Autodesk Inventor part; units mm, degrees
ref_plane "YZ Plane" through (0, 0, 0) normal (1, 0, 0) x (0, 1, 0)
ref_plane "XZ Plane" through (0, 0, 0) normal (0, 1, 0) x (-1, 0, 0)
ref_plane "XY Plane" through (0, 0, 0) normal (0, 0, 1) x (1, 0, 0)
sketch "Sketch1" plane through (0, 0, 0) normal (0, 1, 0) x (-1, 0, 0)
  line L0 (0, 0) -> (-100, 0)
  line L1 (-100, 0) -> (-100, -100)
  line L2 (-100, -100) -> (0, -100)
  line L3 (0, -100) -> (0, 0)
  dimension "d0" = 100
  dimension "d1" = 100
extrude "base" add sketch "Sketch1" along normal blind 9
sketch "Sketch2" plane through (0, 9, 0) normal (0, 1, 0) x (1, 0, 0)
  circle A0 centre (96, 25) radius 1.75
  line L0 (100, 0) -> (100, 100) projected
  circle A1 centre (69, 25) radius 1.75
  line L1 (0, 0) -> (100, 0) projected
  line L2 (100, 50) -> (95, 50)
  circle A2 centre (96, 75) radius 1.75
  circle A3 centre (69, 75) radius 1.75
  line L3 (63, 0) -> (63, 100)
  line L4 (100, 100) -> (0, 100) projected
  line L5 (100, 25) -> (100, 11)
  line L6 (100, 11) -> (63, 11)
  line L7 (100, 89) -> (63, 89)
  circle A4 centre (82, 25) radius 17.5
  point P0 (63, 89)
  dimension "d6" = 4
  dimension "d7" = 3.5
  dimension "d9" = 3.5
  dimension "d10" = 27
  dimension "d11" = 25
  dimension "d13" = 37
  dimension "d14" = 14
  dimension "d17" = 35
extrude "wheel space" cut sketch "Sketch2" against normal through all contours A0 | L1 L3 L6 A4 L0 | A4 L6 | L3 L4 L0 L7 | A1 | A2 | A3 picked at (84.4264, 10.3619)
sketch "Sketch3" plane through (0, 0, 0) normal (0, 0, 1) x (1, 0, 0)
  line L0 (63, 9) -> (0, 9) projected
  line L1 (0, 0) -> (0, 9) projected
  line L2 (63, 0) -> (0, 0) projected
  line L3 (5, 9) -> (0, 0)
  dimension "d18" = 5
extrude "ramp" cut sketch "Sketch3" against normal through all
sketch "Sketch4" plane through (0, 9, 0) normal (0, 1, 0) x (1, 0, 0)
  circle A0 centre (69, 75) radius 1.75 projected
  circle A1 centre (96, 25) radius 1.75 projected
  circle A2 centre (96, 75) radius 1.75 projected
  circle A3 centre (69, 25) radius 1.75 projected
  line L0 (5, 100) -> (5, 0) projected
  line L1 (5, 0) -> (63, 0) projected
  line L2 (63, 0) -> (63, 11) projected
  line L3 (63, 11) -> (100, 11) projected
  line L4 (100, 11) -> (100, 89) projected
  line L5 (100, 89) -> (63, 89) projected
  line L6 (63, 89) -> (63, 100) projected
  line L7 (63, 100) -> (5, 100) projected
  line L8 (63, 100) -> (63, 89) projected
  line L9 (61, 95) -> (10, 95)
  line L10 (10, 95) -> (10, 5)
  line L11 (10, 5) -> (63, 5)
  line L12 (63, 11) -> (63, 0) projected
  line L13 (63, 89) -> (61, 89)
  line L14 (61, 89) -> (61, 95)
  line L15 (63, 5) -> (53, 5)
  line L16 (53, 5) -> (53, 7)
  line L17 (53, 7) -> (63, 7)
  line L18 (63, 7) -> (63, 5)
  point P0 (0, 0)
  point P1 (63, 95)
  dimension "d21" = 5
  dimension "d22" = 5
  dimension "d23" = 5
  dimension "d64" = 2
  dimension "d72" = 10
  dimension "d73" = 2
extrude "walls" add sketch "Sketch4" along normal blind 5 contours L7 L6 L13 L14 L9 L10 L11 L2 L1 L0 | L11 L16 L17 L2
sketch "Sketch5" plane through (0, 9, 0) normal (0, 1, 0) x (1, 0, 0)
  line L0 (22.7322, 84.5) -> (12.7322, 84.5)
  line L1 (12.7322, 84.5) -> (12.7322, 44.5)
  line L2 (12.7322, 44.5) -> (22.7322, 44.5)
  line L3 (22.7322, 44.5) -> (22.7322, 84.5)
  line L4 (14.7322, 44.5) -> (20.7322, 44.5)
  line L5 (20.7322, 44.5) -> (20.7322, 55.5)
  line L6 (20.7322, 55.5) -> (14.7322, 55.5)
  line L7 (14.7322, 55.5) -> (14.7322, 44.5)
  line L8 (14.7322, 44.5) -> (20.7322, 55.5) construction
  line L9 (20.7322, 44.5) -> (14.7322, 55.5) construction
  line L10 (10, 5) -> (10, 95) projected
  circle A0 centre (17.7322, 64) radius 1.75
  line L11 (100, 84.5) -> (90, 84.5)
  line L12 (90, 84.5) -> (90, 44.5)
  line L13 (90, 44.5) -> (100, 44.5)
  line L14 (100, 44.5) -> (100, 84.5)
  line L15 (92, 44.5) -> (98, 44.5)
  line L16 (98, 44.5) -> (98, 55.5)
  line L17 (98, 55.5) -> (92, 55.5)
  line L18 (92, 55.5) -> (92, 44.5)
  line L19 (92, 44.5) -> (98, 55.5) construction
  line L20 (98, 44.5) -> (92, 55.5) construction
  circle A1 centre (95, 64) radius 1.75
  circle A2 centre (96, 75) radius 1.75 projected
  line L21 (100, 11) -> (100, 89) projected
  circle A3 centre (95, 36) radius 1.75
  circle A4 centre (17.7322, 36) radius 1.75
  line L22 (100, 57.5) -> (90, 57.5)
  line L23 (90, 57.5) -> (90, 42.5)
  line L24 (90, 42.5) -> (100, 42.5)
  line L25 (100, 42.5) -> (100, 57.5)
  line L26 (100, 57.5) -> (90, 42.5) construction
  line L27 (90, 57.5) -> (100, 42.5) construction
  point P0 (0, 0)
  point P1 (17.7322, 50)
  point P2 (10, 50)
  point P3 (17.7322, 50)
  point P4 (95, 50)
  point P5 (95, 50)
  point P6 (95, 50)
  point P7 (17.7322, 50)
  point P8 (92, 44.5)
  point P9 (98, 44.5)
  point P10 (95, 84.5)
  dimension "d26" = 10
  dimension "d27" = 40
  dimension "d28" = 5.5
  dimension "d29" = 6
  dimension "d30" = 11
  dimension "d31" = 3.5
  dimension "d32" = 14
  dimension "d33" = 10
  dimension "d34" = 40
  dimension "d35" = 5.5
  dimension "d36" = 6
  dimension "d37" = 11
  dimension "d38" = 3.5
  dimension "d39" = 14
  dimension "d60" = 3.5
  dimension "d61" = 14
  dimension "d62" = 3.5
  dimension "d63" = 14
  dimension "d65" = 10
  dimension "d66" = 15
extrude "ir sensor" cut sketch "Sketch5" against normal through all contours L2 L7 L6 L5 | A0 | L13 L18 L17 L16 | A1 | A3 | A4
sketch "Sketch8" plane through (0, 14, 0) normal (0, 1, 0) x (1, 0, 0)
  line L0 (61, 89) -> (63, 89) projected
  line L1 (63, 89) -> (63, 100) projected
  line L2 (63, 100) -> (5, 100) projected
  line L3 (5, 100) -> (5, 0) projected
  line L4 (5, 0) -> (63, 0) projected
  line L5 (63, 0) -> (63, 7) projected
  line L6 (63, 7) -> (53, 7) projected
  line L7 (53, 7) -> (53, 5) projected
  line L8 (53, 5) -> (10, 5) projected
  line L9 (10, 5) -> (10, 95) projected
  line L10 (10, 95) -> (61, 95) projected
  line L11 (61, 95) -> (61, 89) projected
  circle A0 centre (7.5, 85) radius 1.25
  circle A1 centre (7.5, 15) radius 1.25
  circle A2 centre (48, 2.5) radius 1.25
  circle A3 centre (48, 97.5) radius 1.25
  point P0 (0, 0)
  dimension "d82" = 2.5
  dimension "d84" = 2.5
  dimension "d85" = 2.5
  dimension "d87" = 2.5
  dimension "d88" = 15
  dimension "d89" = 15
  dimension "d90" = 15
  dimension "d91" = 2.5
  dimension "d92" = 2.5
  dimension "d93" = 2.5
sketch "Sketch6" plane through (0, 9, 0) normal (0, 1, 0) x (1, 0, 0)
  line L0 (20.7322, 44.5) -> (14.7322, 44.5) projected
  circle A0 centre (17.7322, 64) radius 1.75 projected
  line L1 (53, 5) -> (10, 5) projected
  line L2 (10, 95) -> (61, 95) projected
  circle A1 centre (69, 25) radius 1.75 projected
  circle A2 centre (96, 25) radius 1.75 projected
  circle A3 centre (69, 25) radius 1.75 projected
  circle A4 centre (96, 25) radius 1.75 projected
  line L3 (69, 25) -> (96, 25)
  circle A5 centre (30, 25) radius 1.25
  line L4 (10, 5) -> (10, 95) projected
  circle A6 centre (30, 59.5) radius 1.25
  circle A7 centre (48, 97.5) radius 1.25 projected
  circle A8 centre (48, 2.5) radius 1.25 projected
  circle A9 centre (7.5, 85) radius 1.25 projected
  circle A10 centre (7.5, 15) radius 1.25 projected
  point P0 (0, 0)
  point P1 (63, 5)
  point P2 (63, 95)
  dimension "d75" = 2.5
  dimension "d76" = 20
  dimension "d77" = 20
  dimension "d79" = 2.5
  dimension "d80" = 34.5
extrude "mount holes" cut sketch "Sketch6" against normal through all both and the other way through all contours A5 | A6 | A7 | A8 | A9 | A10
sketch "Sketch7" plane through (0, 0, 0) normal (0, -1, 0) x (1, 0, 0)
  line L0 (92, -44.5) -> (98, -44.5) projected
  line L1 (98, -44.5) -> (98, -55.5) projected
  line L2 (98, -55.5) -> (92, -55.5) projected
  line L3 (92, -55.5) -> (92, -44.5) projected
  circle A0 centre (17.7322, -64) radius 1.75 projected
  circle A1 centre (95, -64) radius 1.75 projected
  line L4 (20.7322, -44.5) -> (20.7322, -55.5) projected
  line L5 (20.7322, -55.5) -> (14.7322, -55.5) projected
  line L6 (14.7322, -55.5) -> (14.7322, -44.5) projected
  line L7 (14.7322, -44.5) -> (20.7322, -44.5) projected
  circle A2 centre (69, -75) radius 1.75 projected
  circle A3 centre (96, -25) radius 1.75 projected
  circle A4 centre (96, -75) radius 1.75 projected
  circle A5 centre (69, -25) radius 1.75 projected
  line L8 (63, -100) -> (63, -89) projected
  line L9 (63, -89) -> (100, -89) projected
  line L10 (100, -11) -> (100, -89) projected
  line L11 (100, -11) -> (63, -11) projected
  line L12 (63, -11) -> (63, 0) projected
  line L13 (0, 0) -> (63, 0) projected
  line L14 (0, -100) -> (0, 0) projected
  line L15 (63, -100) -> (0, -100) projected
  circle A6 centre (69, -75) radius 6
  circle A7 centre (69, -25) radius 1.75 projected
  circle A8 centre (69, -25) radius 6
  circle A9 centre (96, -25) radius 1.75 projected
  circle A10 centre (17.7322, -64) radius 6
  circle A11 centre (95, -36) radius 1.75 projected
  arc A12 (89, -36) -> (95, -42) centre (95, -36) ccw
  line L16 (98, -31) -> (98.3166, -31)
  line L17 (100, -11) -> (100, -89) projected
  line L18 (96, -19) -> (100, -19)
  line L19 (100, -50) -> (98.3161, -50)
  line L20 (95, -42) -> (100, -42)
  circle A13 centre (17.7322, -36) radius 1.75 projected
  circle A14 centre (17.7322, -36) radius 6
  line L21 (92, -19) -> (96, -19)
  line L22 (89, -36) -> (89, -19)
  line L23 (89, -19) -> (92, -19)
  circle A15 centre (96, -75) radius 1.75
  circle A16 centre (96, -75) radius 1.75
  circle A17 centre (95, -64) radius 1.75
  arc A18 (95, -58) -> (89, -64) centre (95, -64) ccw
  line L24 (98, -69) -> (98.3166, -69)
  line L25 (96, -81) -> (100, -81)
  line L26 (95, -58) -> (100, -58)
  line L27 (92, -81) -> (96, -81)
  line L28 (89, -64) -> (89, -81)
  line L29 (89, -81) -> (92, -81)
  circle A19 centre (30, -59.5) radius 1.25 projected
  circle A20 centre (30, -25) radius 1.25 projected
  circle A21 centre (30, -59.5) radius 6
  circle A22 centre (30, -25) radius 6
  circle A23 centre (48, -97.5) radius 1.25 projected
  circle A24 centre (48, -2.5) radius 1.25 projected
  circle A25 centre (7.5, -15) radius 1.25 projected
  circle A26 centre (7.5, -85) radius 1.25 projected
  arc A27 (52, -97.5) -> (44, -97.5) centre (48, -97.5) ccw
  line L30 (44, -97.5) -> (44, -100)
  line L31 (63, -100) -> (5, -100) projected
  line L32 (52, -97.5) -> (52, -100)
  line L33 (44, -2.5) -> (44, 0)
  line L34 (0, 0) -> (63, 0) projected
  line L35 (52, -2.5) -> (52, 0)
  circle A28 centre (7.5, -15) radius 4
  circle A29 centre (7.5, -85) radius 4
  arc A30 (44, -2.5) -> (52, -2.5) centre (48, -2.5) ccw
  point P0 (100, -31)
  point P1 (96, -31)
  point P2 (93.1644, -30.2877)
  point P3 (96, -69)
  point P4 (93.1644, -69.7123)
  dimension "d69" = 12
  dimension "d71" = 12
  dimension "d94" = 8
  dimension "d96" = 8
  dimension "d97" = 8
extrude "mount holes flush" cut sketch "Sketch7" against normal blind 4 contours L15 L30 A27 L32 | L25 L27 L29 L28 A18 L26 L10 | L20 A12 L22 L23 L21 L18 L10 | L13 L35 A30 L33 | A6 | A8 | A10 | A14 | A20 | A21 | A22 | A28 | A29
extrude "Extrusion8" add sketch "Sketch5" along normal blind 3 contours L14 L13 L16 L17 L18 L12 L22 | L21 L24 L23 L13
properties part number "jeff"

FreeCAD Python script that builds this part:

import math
import FreeCAD as App
import Part
import Sketcher

V = App.Vector
Q = App.Units.Quantity


def add_polygon(sketch, points):
    """Adds a closed chain of lines whose ends are joined by coincident constraints."""
    first, n = sketch.GeometryCount, len(points)
    for a, b in zip(points, points[1:] + points[:1]):
        sketch.addGeometry(Part.LineSegment(App.Vector(*a, 0), App.Vector(*b, 0)), False)
    for i in range(n):
        sketch.addConstraint(Sketcher.Constraint("Coincident", first + i, 2, first + (i + 1) % n, 1))

doc = App.newDocument("Part")
body = doc.addObject("PartDesign::Body", "Body")

# Sketch on XZ plane
sketch1 = body.newObject("Sketcher::SketchObject", "Sketch")
sketch1.AttachmentSupport = (doc.getObject("XZ_Plane"), [""])
sketch1.MapMode = "FlatFace"
add_polygon(sketch1, [(0, -100), (0, 0), (100, 0), (100, -100)])  # lines 0-3
sketch1.addConstraint(Sketcher.Constraint("Vertical", 0))
sketch1.addConstraint(Sketcher.Constraint("Horizontal", 1))
sketch1.addConstraint(Sketcher.Constraint("Vertical", 2))
sketch1.addConstraint(Sketcher.Constraint("Horizontal", 3))
sketch1.addConstraint(Sketcher.Constraint("Coincident", 0, 2, -1, 1))
sketch1.addConstraint(Sketcher.Constraint("Equal", 3, 0))
sketch1.addConstraint(Sketcher.Constraint("DistanceX", 1, 1, 1, 2, Q("100 mm")))
pad1 = body.newObject("PartDesign::Pad", "Pad")
pad1.Profile = sketch1
pad1.Length = 9
pad1.Reversed = True

# Sketch on XZ plane
sketch2 = body.newObject("Sketcher::SketchObject", "Sketch001")
sketch2.AttachmentSupport = (doc.getObject("XZ_Plane"), [""])
sketch2.MapMode = "FlatFace"
sketch2.AttachmentOffset = App.Placement(V(0, 0, -9), App.Rotation())
sketch2.addGeometry(Part.Circle(V(96, -25, 0), V(0, 0, 1), 1.8), False)  # 0
add_polygon(sketch2, [(63, 0), (100, 0), (100, -11), (63, -11)])  # lines 1-4
add_polygon(sketch2, [(63, -100), (63, -89), (100, -89), (100, -100)])  # lines 5-8
sketch2.addGeometry(Part.Circle(V(69, -25, 0), V(0, 0, 1), 1.8), False)  # 9
sketch2.addGeometry(Part.Circle(V(96, -75, 0), V(0, 0, 1), 1.8), False)  # 10
sketch2.addGeometry(Part.Circle(V(69, -75, 0), V(0, 0, 1), 1.8), False)  # 11
sketch2.addConstraint(Sketcher.Constraint("Horizontal", 1))
sketch2.addConstraint(Sketcher.Constraint("Vertical", 2))
sketch2.addConstraint(Sketcher.Constraint("Horizontal", 3))
sketch2.addConstraint(Sketcher.Constraint("Vertical", 4))
sketch2.addConstraint(Sketcher.Constraint("Vertical", 5))
sketch2.addConstraint(Sketcher.Constraint("Horizontal", 6))
sketch2.addConstraint(Sketcher.Constraint("Vertical", 7))
sketch2.addConstraint(Sketcher.Constraint("Horizontal", 8))
sketch2.addConstraint(Sketcher.Constraint("Equal", 0, 9))
sketch2.addConstraint(Sketcher.Constraint("Equal", 9, 10))
sketch2.addConstraint(Sketcher.Constraint("Equal", 10, 11))
sketch2.addConstraint(Sketcher.Constraint("PointOnObject", 1, 2, -1))
sketch2.addConstraint(Sketcher.Constraint("Horizontal", 0, 3, 9, 3))
sketch2.addConstraint(Sketcher.Constraint("Horizontal", 10, 3, 11, 3))
sketch2.addConstraint(Sketcher.Constraint("Vertical", 0, 3, 10, 3))
sketch2.addConstraint(Sketcher.Constraint("Vertical", 9, 3, 11, 3))
sketch2.addConstraint(Sketcher.Constraint("Vertical", 4, 2, 5, 2))
sketch2.addConstraint(Sketcher.Constraint("Vertical", 2, 2, 6, 2))
sketch2.addConstraint(Sketcher.Constraint("Equal", 4, 5))
sketch2.addConstraint(Sketcher.Constraint("Diameter", 0, Q("3.5 mm")))
sketch2.addConstraint(Sketcher.Constraint("DistanceX", 1, 1, 1, 2, Q("37 mm")))
sketch2.addConstraint(Sketcher.Constraint("DistanceY", 0, 3, -1, 1, Q("25 mm")))
sketch2.addConstraint(Sketcher.Constraint("DistanceX", 9, 3, 0, 3, Q("27 mm")))
sketch2.addConstraint(Sketcher.Constraint("DistanceX", 0, 3, 1, 2, Q("4 mm")))
sketch2.addConstraint(Sketcher.Constraint("DistanceY", 0, 3, 2, 2, Q("14 mm")))
sketch2.addConstraint(Sketcher.Constraint("DistanceY", 5, 2, 11, 3, Q("14 mm")))
sketch2.addConstraint(Sketcher.Constraint("DistanceX", -1, 1, 0, 3, Q("96 mm")))
sketch2.addConstraint(Sketcher.Constraint("DistanceY", 10, 3, -1, 1, Q("75 mm")))
pocket1 = body.newObject("PartDesign::Pocket", "Pocket")
pocket1.Profile = sketch2
pocket1.Type = "ThroughAll"
pocket1.Reversed = True

# Sketch on XY plane
sketch3 = body.newObject("Sketcher::SketchObject", "Sketch002")
sketch3.AttachmentSupport = (doc.getObject("XY_Plane"), [""])
sketch3.MapMode = "FlatFace"
add_polygon(sketch3, [(0, 0), (5, 9), (0, 9)])  # lines 0-2
sketch3.addConstraint(Sketcher.Constraint("Horizontal", 1))
sketch3.addConstraint(Sketcher.Constraint("Vertical", 2))
sketch3.addConstraint(Sketcher.Constraint("Coincident", 2, 2, -1, 1))
sketch3.addConstraint(Sketcher.Constraint("DistanceX", 1, 2, 1, 1, Q("5 mm")))
sketch3.addConstraint(Sketcher.Constraint("DistanceY", 2, 2, 2, 1, Q("9 mm")))
pocket2 = body.newObject("PartDesign::Pocket", "Pocket001")
pocket2.Profile = sketch3
pocket2.Type = "ThroughAll"

# Sketch on XZ plane
sketch4 = body.newObject("Sketcher::SketchObject", "Sketch003")
sketch4.AttachmentSupport = (doc.getObject("XZ_Plane"), [""])
sketch4.MapMode = "FlatFace"
sketch4.AttachmentOffset = App.Placement(V(0, 0, -9), App.Rotation())
add_polygon(sketch4, [(63, -100), (5, -100), (5, 0), (63, 0), (63, -7), (53, -7), (53, -5), (10, -5), (10, -95), (61, -95), (61, -89), (63, -89)])  # lines 0-11
sketch4.addConstraint(Sketcher.Constraint("Horizontal", 0))
sketch4.addConstraint(Sketcher.Constraint("Vertical", 1))
sketch4.addConstraint(Sketcher.Constraint("Horizontal", 2))
sketch4.addConstraint(Sketcher.Constraint("Vertical", 3))
sketch4.addConstraint(Sketcher.Constraint("Horizontal", 4))
sketch4.addConstraint(Sketcher.Constraint("Vertical", 5))
sketch4.addConstraint(Sketcher.Constraint("Horizontal", 6))
sketch4.addConstraint(Sketcher.Constraint("Vertical", 7))
sketch4.addConstraint(Sketcher.Constraint("Horizontal", 8))
sketch4.addConstraint(Sketcher.Constraint("Vertical", 9))
sketch4.addConstraint(Sketcher.Constraint("Horizontal", 10))
sketch4.addConstraint(Sketcher.Constraint("Vertical", 11))
sketch4.addConstraint(Sketcher.Constraint("PointOnObject", 1, 2, -1))
sketch4.addConstraint(Sketcher.Constraint("Vertical", 3, 2, 10, 2))
sketch4.addConstraint(Sketcher.Constraint("Equal", 10, 5))
sketch4.addConstraint(Sketcher.Constraint("DistanceX", 4, 2, 4, 1, Q("10 mm")))
sketch4.addConstraint(Sketcher.Constraint("DistanceX", 10, 1, 10, 2, Q("2 mm")))
sketch4.addConstraint(Sketcher.Constraint("DistanceX", -1, 1, 0, 2, Q("5 mm")))
sketch4.addConstraint(Sketcher.Constraint("DistanceY", 5, 2, -1, 1, Q("5 mm")))
sketch4.addConstraint(Sketcher.Constraint("DistanceX", -1, 1, 6, 2, Q("10 mm")))
sketch4.addConstraint(Sketcher.Constraint("DistanceY", 0, 2, 7, 2, Q("5 mm")))
sketch4.addConstraint(Sketcher.Constraint("DistanceX", 0, 2, 0, 1, Q("58 mm")))
sketch4.addConstraint(Sketcher.Constraint("DistanceY", 1, 1, 1, 2, Q("100 mm")))
sketch4.addConstraint(Sketcher.Constraint("DistanceY", 9, 1, 9, 2, Q("6 mm")))
pad2 = body.newObject("PartDesign::Pad", "Pad001")
pad2.Profile = sketch4
pad2.Length = 5
pad2.Reversed = True

# Sketch on XZ plane
sketch5 = body.newObject("Sketcher::SketchObject", "Sketch004")
sketch5.AttachmentSupport = (doc.getObject("XZ_Plane"), [""])
sketch5.MapMode = "FlatFace"
sketch5.AttachmentOffset = App.Placement(V(0, 0, -9), App.Rotation())
add_polygon(sketch5, [(14.7, -44.5), (20.7, -44.5), (20.7, -55.5), (14.7, -55.5)])  # lines 0-3
sketch5.addGeometry(Part.Circle(V(17.7, -64, 0), V(0, 0, 1), 1.8), False)  # 4
add_polygon(sketch5, [(92, -44.5), (98, -44.5), (98, -55.5), (92, -55.5)])  # lines 5-8
sketch5.addGeometry(Part.Circle(V(95, -64, 0), V(0, 0, 1), 1.8), False)  # 9
sketch5.addGeometry(Part.Circle(V(95, -36, 0), V(0, 0, 1), 1.8), False)  # 10
sketch5.addGeometry(Part.Circle(V(17.7, -36, 0), V(0, 0, 1), 1.8), False)  # 11
sketch5.addConstraint(Sketcher.Constraint("Horizontal", 0))
sketch5.addConstraint(Sketcher.Constraint("Vertical", 1))
sketch5.addConstraint(Sketcher.Constraint("Horizontal", 2))
sketch5.addConstraint(Sketcher.Constraint("Vertical", 3))
sketch5.addConstraint(Sketcher.Constraint("Horizontal", 5))
sketch5.addConstraint(Sketcher.Constraint("Vertical", 6))
sketch5.addConstraint(Sketcher.Constraint("Horizontal", 7))
sketch5.addConstraint(Sketcher.Constraint("Vertical", 8))
sketch5.addConstraint(Sketcher.Constraint("Equal", 4, 9))
sketch5.addConstraint(Sketcher.Constraint("Equal", 9, 10))
sketch5.addConstraint(Sketcher.Constraint("Equal", 10, 11))
sketch5.addConstraint(Sketcher.Constraint("Horizontal", 4, 3, 9, 3))
sketch5.addConstraint(Sketcher.Constraint("Horizontal", 10, 3, 11, 3))
sketch5.addConstraint(Sketcher.Constraint("Horizontal", 3, 2, 5, 2))
sketch5.addConstraint(Sketcher.Constraint("Horizontal", 2, 2, 6, 2))
sketch5.addConstraint(Sketcher.Constraint("Vertical", 9, 3, 10, 3))
sketch5.addConstraint(Sketcher.Constraint("Vertical", 4, 3, 11, 3))
sketch5.addConstraint(Sketcher.Constraint("Equal", 2, 5))
sketch5.addConstraint(Sketcher.Constraint("Diameter", 4, Q("3.5 mm")))
sketch5.addConstraint(Sketcher.Constraint("DistanceX", 0, 1, 0, 2, Q("6 mm")))
sketch5.addConstraint(Sketcher.Constraint("DistanceY", 1, 2, 1, 1, Q("11 mm")))
sketch5.addConstraint(Sketcher.Constraint("DistanceY", 4, 3, -1, 1, Q("64 mm")))
sketch5.addConstraint(Sketcher.Constraint("DistanceX", -1, 1, 9, 3, Q("95 mm")))
sketch5.addConstraint(Sketcher.Constraint("DistanceY", 10, 3, -1, 1, Q("36 mm")))
sketch5.addConstraint(Sketcher.Constraint("DistanceX", -1, 1, 5, 2, Q("98 mm")))
sketch5.addConstraint(Sketcher.Constraint("DistanceX", 11, 3, 0, 2, Q("3 mm")))
sketch5.addConstraint(Sketcher.Constraint("DistanceY", 0, 2, -1, 1, Q("44.5 mm")))
sketch5.addConstraint(Sketcher.Constraint("DistanceX", -1, 1, 4, 3, Q("17.7322 mm")))
pocket3 = body.newObject("PartDesign::Pocket", "Pocket002")
pocket3.Profile = sketch5
pocket3.Type = "ThroughAll"
pocket3.Reversed = True

# Sketch on XZ plane
sketch6 = body.newObject("Sketcher::SketchObject", "Sketch005")
sketch6.AttachmentSupport = (doc.getObject("XZ_Plane"), [""])
sketch6.MapMode = "FlatFace"
sketch6.AttachmentOffset = App.Placement(V(0, 0, -9), App.Rotation())
sketch6.addGeometry(Part.Circle(V(30, -25, 0), V(0, 0, 1), 1.2), False)
sketch6.addGeometry(Part.Circle(V(30, -59.5, 0), V(0, 0, 1), 1.2), False)
sketch6.addGeometry(Part.Circle(V(48, -97.5, 0), V(0, 0, 1), 1.2), False)
sketch6.addGeometry(Part.Circle(V(48, -2.5, 0), V(0, 0, 1), 1.2), False)
sketch6.addGeometry(Part.Circle(V(7.5, -85, 0), V(0, 0, 1), 1.2), False)
sketch6.addGeometry(Part.Circle(V(7.5, -15, 0), V(0, 0, 1), 1.2), False)
sketch6.addConstraint(Sketcher.Constraint("Equal", 0, 1))
sketch6.addConstraint(Sketcher.Constraint("Equal", 1, 2))
sketch6.addConstraint(Sketcher.Constraint("Equal", 2, 3))
sketch6.addConstraint(Sketcher.Constraint("Equal", 3, 4))
sketch6.addConstraint(Sketcher.Constraint("Equal", 4, 5))
sketch6.addConstraint(Sketcher.Constraint("Vertical", 0, 3, 1, 3))
sketch6.addConstraint(Sketcher.Constraint("Vertical", 2, 3, 3, 3))
sketch6.addConstraint(Sketcher.Constraint("Vertical", 4, 3, 5, 3))
sketch6.addConstraint(Sketcher.Constraint("Diameter", 0, Q("2.5 mm")))
sketch6.addConstraint(Sketcher.Constraint("DistanceY", 3, 3, -1, 1, Q("2.5 mm")))
sketch6.addConstraint(Sketcher.Constraint("DistanceY", 1, 3, 0, 3, Q("34.5 mm")))
sketch6.addConstraint(Sketcher.Constraint("DistanceX", -1, 1, 0, 3, Q("30 mm")))
sketch6.addConstraint(Sketcher.Constraint("DistanceY", 0, 3, -1, 1, Q("25 mm")))
sketch6.addConstraint(Sketcher.Constraint("DistanceX", -1, 1, 2, 3, Q("48 mm")))
sketch6.addConstraint(Sketcher.Constraint("DistanceY", 4, 3, -1, 1, Q("85 mm")))
sketch6.addConstraint(Sketcher.Constraint("DistanceY", 5, 3, -1, 1, Q("15 mm")))
sketch6.addConstraint(Sketcher.Constraint("DistanceY", 2, 3, 1, 3, Q("38 mm")))
sketch6.addConstraint(Sketcher.Constraint("DistanceX", -1, 1, 4, 3, Q("7.5 mm")))
pocket4 = body.newObject("PartDesign::Pocket", "Pocket003")
pocket4.Profile = sketch6
pocket4.Type = "ThroughAll"
pocket4.Midplane = True

# Sketch on XZ plane
sketch7 = body.newObject("Sketcher::SketchObject", "Sketch006")
sketch7.AttachmentSupport = (doc.getObject("XZ_Plane"), [""])
sketch7.MapMode = "FlatFace"
sketch7.addGeometry(Part.LineSegment(V(44, -100, 0), V(52, -100, 0)), False)
sketch7.addGeometry(Part.LineSegment(V(52, -100, 0), V(52, -97.5, 0)), False)
sketch7.addGeometry(Part.ArcOfCircle(Part.Circle(V(48, -97.5, 0), V(0, 0, 1), 4), math.radians(0), math.radians(180)), False)
sketch7.addGeometry(Part.LineSegment(V(44, -97.5, 0), V(44, -100, 0)), False)
sketch7.addGeometry(Part.Circle(V(48, -97.5, 0), V(0, 0, 1), 1.2), False)
sketch7.addGeometry(Part.LineSegment(V(89, -81, 0), V(100, -81, 0)), False)
sketch7.addGeometry(Part.LineSegment(V(100, -81, 0), V(100, -58, 0)), False)
sketch7.addGeometry(Part.LineSegment(V(100, -58, 0), V(95, -58, 0)), False)
sketch7.addGeometry(Part.ArcOfCircle(Part.Circle(V(95, -64, 0), V(0, 0, 1), 6), math.radians(90), math.radians(180)), False)
sketch7.addGeometry(Part.LineSegment(V(89, -64, 0), V(89, -81, 0)), False)
sketch7.addGeometry(Part.Circle(V(96, -75, 0), V(0, 0, 1), 1.8), False)
sketch7.addGeometry(Part.Circle(V(95, -64, 0), V(0, 0, 1), 1.8), False)
sketch7.addGeometry(Part.LineSegment(V(95, -42, 0), V(100, -42, 0)), False)
sketch7.addGeometry(Part.LineSegment(V(100, -42, 0), V(100, -19, 0)), False)
sketch7.addGeometry(Part.LineSegment(V(100, -19, 0), V(89, -19, 0)), False)
sketch7.addGeometry(Part.LineSegment(V(89, -19, 0), V(89, -36, 0)), False)
sketch7.addGeometry(Part.ArcOfCircle(Part.Circle(V(95, -36, 0), V(0, 0, 1), 6), math.radians(180), math.radians(270)), False)
sketch7.addGeometry(Part.Circle(V(95, -36, 0), V(0, 0, 1), 1.8), False)
sketch7.addGeometry(Part.Circle(V(96, -25, 0), V(0, 0, 1), 1.8), False)
sketch7.addGeometry(Part.LineSegment(V(52, 0, 0), V(44, 0, 0)), False)
sketch7.addGeometry(Part.LineSegment(V(44, 0, 0), V(44, -2.5, 0)), False)
sketch7.addGeometry(Part.ArcOfCircle(Part.Circle(V(48, -2.5, 0), V(0, 0, 1), 4), math.radians(180), math.radians(360)), False)
sketch7.addGeometry(Part.LineSegment(V(52, -2.5, 0), V(52, 0, 0)), False)
sketch7.addGeometry(Part.Circle(V(48, -2.5, 0), V(0, 0, 1), 1.2), False)
sketch7.addGeometry(Part.Circle(V(69, -75, 0), V(0, 0, 1), 6), False)
sketch7.addGeometry(Part.Circle(V(69, -75, 0), V(0, 0, 1), 1.8), False)
sketch7.addGeometry(Part.Circle(V(69, -25, 0), V(0, 0, 1), 6), False)
sketch7.addGeometry(Part.Circle(V(69, -25, 0), V(0, 0, 1), 1.8), False)
sketch7.addGeometry(Part.Circle(V(17.7, -64, 0), V(0, 0, 1), 6), False)
sketch7.addGeometry(Part.Circle(V(17.7, -64, 0), V(0, 0, 1), 1.8), False)
sketch7.addGeometry(Part.Circle(V(17.7, -36, 0), V(0, 0, 1), 6), False)
sketch7.addGeometry(Part.Circle(V(17.7, -36, 0), V(0, 0, 1), 1.8), False)
sketch7.addGeometry(Part.Circle(V(30, -25, 0), V(0, 0, 1), 6), False)
sketch7.addGeometry(Part.Circle(V(30, -59.5, 0), V(0, 0, 1), 6), False)
sketch7.addGeometry(Part.Circle(V(30, -59.5, 0), V(0, 0, 1), 1.2), False)
sketch7.addGeometry(Part.Circle(V(7.5, -15, 0), V(0, 0, 1), 4), False)
sketch7.addGeometry(Part.Circle(V(7.5, -15, 0), V(0, 0, 1), 1.2), False)
sketch7.addGeometry(Part.Circle(V(7.5, -85, 0), V(0, 0, 1), 4), False)
sketch7.addGeometry(Part.Circle(V(7.5, -85, 0), V(0, 0, 1), 1.2), False)
sketch7.addConstraint(Sketcher.Constraint("Coincident", 0, 2, 1, 1))
sketch7.addConstraint(Sketcher.Constraint("Tangent", 1, 2, 2, 1))
sketch7.addConstraint(Sketcher.Constraint("Tangent", 2, 2, 3, 1))
sketch7.addConstraint(Sketcher.Constraint("Coincident", 3, 2, 0, 1))
sketch7.addConstraint(Sketcher.Constraint("Coincident", 5, 2, 6, 1))
sketch7.addConstraint(Sketcher.Constraint("Coincident", 6, 2, 7, 1))
sketch7.addConstraint(Sketcher.Constraint("Tangent", 7, 2, 8, 1))
sketch7.addConstraint(Sketcher.Constraint("Tangent", 8, 2, 9, 1))
sketch7.addConstraint(Sketcher.Constraint("Coincident", 9, 2, 5, 1))
sketch7.addConstraint(Sketcher.Constraint("Coincident", 12, 2, 13, 1))
sketch7.addConstraint(Sketcher.Constraint("Coincident", 13, 2, 14, 1))
sketch7.addConstraint(Sketcher.Constraint("Coincident", 14, 2, 15, 1))
sketch7.addConstraint(Sketcher.Constraint("Tangent", 15, 2, 16, 1))
sketch7.addConstraint(Sketcher.Constraint("Tangent", 16, 2, 12, 1))
sketch7.addConstraint(Sketcher.Constraint("Coincident", 19, 2, 20, 1))
sketch7.addConstraint(Sketcher.Constraint("Tangent", 20, 2, 21, 1))
sketch7.addConstraint(Sketcher.Constraint("Tangent", 21, 2, 22, 1))
sketch7.addConstraint(Sketcher.Constraint("Coincident", 22, 2, 19, 1))
sketch7.addConstraint(Sketcher.Constraint("Horizontal", 0))
sketch7.addConstraint(Sketcher.Constraint("Vertical", 1))
sketch7.addConstraint(Sketcher.Constraint("Vertical", 3))
sketch7.addConstraint(Sketcher.Constraint("Horizontal", 5))
sketch7.addConstraint(Sketcher.Constraint("Vertical", 6))
sketch7.addConstraint(Sketcher.Constraint("Horizontal", 7))
sketch7.addConstraint(Sketcher.Constraint("Vertical", 9))
sketch7.addConstraint(Sketcher.Constraint("Horizontal", 12))
sketch7.addConstraint(Sketcher.Constraint("Vertical", 13))
sketch7.addConstraint(Sketcher.Constraint("Horizontal", 14))
sketch7.addConstraint(Sketcher.Constraint("Vertical", 15))
sketch7.addConstraint(Sketcher.Constraint("Horizontal", 19))
sketch7.addConstraint(Sketcher.Constraint("Vertical", 20))
sketch7.addConstraint(Sketcher.Constraint("Vertical", 22))
sketch7.addConstraint(Sketcher.Constraint("Coincident", 4, 3, 2, 3))
sketch7.addConstraint(Sketcher.Constraint("Coincident", 11, 3, 8, 3))
sketch7.addConstraint(Sketcher.Constraint("Coincident", 17, 3, 16, 3))
sketch7.addConstraint(Sketcher.Constraint("Coincident", 23, 3, 21, 3))
sketch7.addConstraint(Sketcher.Constraint("Coincident", 25, 3, 24, 3))
sketch7.addConstraint(Sketcher.Constraint("Coincident", 27, 3, 26, 3))
sketch7.addConstraint(Sketcher.Constraint("Coincident", 29, 3, 28, 3))
sketch7.addConstraint(Sketcher.Constraint("Coincident", 31, 3, 30, 3))
sketch7.addConstraint(Sketcher.Constraint("Coincident", 34, 3, 33, 3))
sketch7.addConstraint(Sketcher.Constraint("Coincident", 36, 3, 35, 3))
sketch7.addConstraint(Sketcher.Constraint("Coincident", 38, 3, 37, 3))
sketch7.addConstraint(Sketcher.Constraint("Equal", 10, 11))
sketch7.addConstraint(Sketcher.Constraint("Equal", 8, 16))
sketch7.addConstraint(Sketcher.Constraint("Equal", 11, 17))
sketch7.addConstraint(Sketcher.Constraint("Equal", 17, 18))
sketch7.addConstraint(Sketcher.Constraint("Equal", 2, 21))
sketch7.addConstraint(Sketcher.Constraint("Equal", 4, 23))
sketch7.addConstraint(Sketcher.Constraint("Equal", 16, 24))
sketch7.addConstraint(Sketcher.Constraint("Equal", 18, 25))
sketch7.addConstraint(Sketcher.Constraint("Equal", 24, 26))
sketch7.addConstraint(Sketcher.Constraint("Equal", 25, 27))
sketch7.addConstraint(Sketcher.Constraint("Equal", 26, 28))
sketch7.addConstraint(Sketcher.Constraint("Equal", 27, 29))
sketch7.addConstraint(Sketcher.Constraint("Equal", 28, 30))
sketch7.addConstraint(Sketcher.Constraint("Equal", 29, 31))
sketch7.addConstraint(Sketcher.Constraint("Equal", 30, 32))
sketch7.addConstraint(Sketcher.Constraint("Equal", 32, 33))
sketch7.addConstraint(Sketcher.Constraint("Equal", 23, 34))
sketch7.addConstraint(Sketcher.Constraint("Equal", 21, 35))
sketch7.addConstraint(Sketcher.Constraint("Equal", 34, 36))
sketch7.addConstraint(Sketcher.Constraint("Equal", 35, 37))
sketch7.addConstraint(Sketcher.Constraint("Equal", 36, 38))
sketch7.addConstraint(Sketcher.Constraint("PointOnObject", 19, 2, -1))
sketch7.addConstraint(Sketcher.Constraint("Horizontal", 10, 3, 24, 3))
sketch7.addConstraint(Sketcher.Constraint("Horizontal", 18, 3, 26, 3))
sketch7.addConstraint(Sketcher.Constraint("Horizontal", 11, 3, 28, 3))
sketch7.addConstraint(Sketcher.Constraint("Horizontal", 17, 3, 30, 3))
sketch7.addConstraint(Sketcher.Constraint("Horizontal", 27, 3, 32, 3))
sketch7.addConstraint(Sketcher.Constraint("Vertical", 11, 3, 16, 3))
sketch7.addConstraint(Sketcher.Constraint("Vertical", 10, 3, 18, 3))
sketch7.addConstraint(Sketcher.Constraint("Vertical", 4, 3, 21, 3))
sketch7.addConstraint(Sketcher.Constraint("Vertical", 25, 3, 26, 3))
sketch7.addConstraint(Sketcher.Constraint("Vertical", 29, 3, 30, 3))
sketch7.addConstraint(Sketcher.Constraint("Vertical", 32, 3, 33, 3))
sketch7.addConstraint(Sketcher.Constraint("Vertical", 36, 3, 37, 3))
sketch7.addConstraint(Sketcher.Constraint("Vertical", 6, 2, 12, 2))
sketch7.addConstraint(Sketcher.Constraint("Equal", 6, 13))
sketch7.addConstraint(Sketcher.Constraint("Equal", 3, 20))
sketch7.addConstraint(Sketcher.Constraint("Diameter", 24, Q("12 mm")))
sketch7.addConstraint(Sketcher.Constraint("Diameter", 35, Q("8 mm")))
sketch7.addConstraint(Sketcher.Constraint("Diameter", 4, Q("2.5 mm")))
sketch7.addConstraint(Sketcher.Constraint("Diameter", 10, Q("3.5 mm")))
sketch7.addConstraint(Sketcher.Constraint("DistanceX", 5, 1, 5, 2, Q("11 mm")))
sketch7.addConstraint(Sketcher.Constraint("DistanceY", 6, 1, 6, 2, Q("23 mm")))
sketch7.addConstraint(Sketcher.Constraint("DistanceY", 1, 1, 1, 2, Q("2.5 mm")))
sketch7.addConstraint(Sketcher.Constraint("DistanceX", -1, 1, 2, 3, Q("48 mm")))
sketch7.addConstraint(Sketcher.Constraint("DistanceX", -1, 1, 8, 3, Q("95 mm")))
sketch7.addConstraint(Sketcher.Constraint("DistanceY", 8, 3, -1, 1, Q("64 mm")))
sketch7.addConstraint(Sketcher.Constraint("DistanceX", -1, 1, 10, 3, Q("96 mm")))
sketch7.addConstraint(Sketcher.Constraint("DistanceY", 10, 3, -1, 1, Q("75 mm")))
sketch7.addConstraint(Sketcher.Constraint("DistanceY", 16, 3, -1, 1, Q("36 mm")))
sketch7.addConstraint(Sketcher.Constraint("DistanceY", 18, 3, -1, 1, Q("25 mm")))
sketch7.addConstraint(Sketcher.Constraint("DistanceX", -1, 1, 24, 3, Q("69 mm")))
sketch7.addConstraint(Sketcher.Constraint("DistanceX", -1, 1, 32, 3, Q("30 mm")))
sketch7.addConstraint(Sketcher.Constraint("DistanceY", 35, 3, -1, 1, Q("15 mm")))
sketch7.addConstraint(Sketcher.Constraint("DistanceY", 37, 3, -1, 1, Q("85 mm")))
sketch7.addConstraint(Sketcher.Constraint("DistanceY", 0, 2, -1, 1, Q("100 mm")))
sketch7.addConstraint(Sketcher.Constraint("DistanceY", 33, 3, -1, 1, Q("59.5 mm")))
sketch7.addConstraint(Sketcher.Constraint("DistanceX", -1, 1, 35, 3, Q("7.5 mm")))
sketch7.addConstraint(Sketcher.Constraint("DistanceX", -1, 1, 28, 3, Q("17.7322 mm")))
pocket5 = body.newObject("PartDesign::Pocket", "Pocket004")
pocket5.Profile = sketch7
pocket5.Length = 4

# Sketch on XZ plane
sketch8 = body.newObject("Sketcher::SketchObject", "Sketch007")
sketch8.AttachmentSupport = (doc.getObject("XZ_Plane"), [""])
sketch8.MapMode = "FlatFace"
sketch8.AttachmentOffset = App.Placement(V(0, 0, -9), App.Rotation())
add_polygon(sketch8, [(100, -58), (90, -58), (90, -42), (100, -42)])  # lines 0-3
add_polygon(sketch8, [(98, -56), (98, -44), (92, -44), (92, -56)])  # lines 4-7
sketch8.addConstraint(Sketcher.Constraint("Horizontal", 0))
sketch8.addConstraint(Sketcher.Constraint("Vertical", 1))
sketch8.addConstraint(Sketcher.Constraint("Horizontal", 2))
sketch8.addConstraint(Sketcher.Constraint("Vertical", 3))
sketch8.addConstraint(Sketcher.Constraint("Vertical", 4))
sketch8.addConstraint(Sketcher.Constraint("Horizontal", 5))
sketch8.addConstraint(Sketcher.Constraint("Vertical", 6))
sketch8.addConstraint(Sketcher.Constraint("Horizontal", 7))
sketch8.addConstraint(Sketcher.Constraint("DistanceX", 0, 2, 0, 1, Q("10 mm")))
sketch8.addConstraint(Sketcher.Constraint("DistanceX", 5, 2, 5, 1, Q("6 mm")))
sketch8.addConstraint(Sketcher.Constraint("DistanceY", 1, 1, 1, 2, Q("15 mm")))
sketch8.addConstraint(Sketcher.Constraint("DistanceY", 4, 1, 4, 2, Q("11 mm")))
sketch8.addConstraint(Sketcher.Constraint("DistanceX", -1, 1, 0, 2, Q("90 mm")))
sketch8.addConstraint(Sketcher.Constraint("DistanceX", -1, 1, 4, 2, Q("98 mm")))
sketch8.addConstraint(Sketcher.Constraint("DistanceY", 4, 2, 2, 2, Q("2 mm")))
sketch8.addConstraint(Sketcher.Constraint("DistanceY", 0, 2, -1, 1, Q("57.5 mm")))
pad3 = body.newObject("PartDesign::Pad", "Pad002")
pad3.Profile = sketch8
pad3.Length = 3
pad3.Reversed = True

doc.recompute()
